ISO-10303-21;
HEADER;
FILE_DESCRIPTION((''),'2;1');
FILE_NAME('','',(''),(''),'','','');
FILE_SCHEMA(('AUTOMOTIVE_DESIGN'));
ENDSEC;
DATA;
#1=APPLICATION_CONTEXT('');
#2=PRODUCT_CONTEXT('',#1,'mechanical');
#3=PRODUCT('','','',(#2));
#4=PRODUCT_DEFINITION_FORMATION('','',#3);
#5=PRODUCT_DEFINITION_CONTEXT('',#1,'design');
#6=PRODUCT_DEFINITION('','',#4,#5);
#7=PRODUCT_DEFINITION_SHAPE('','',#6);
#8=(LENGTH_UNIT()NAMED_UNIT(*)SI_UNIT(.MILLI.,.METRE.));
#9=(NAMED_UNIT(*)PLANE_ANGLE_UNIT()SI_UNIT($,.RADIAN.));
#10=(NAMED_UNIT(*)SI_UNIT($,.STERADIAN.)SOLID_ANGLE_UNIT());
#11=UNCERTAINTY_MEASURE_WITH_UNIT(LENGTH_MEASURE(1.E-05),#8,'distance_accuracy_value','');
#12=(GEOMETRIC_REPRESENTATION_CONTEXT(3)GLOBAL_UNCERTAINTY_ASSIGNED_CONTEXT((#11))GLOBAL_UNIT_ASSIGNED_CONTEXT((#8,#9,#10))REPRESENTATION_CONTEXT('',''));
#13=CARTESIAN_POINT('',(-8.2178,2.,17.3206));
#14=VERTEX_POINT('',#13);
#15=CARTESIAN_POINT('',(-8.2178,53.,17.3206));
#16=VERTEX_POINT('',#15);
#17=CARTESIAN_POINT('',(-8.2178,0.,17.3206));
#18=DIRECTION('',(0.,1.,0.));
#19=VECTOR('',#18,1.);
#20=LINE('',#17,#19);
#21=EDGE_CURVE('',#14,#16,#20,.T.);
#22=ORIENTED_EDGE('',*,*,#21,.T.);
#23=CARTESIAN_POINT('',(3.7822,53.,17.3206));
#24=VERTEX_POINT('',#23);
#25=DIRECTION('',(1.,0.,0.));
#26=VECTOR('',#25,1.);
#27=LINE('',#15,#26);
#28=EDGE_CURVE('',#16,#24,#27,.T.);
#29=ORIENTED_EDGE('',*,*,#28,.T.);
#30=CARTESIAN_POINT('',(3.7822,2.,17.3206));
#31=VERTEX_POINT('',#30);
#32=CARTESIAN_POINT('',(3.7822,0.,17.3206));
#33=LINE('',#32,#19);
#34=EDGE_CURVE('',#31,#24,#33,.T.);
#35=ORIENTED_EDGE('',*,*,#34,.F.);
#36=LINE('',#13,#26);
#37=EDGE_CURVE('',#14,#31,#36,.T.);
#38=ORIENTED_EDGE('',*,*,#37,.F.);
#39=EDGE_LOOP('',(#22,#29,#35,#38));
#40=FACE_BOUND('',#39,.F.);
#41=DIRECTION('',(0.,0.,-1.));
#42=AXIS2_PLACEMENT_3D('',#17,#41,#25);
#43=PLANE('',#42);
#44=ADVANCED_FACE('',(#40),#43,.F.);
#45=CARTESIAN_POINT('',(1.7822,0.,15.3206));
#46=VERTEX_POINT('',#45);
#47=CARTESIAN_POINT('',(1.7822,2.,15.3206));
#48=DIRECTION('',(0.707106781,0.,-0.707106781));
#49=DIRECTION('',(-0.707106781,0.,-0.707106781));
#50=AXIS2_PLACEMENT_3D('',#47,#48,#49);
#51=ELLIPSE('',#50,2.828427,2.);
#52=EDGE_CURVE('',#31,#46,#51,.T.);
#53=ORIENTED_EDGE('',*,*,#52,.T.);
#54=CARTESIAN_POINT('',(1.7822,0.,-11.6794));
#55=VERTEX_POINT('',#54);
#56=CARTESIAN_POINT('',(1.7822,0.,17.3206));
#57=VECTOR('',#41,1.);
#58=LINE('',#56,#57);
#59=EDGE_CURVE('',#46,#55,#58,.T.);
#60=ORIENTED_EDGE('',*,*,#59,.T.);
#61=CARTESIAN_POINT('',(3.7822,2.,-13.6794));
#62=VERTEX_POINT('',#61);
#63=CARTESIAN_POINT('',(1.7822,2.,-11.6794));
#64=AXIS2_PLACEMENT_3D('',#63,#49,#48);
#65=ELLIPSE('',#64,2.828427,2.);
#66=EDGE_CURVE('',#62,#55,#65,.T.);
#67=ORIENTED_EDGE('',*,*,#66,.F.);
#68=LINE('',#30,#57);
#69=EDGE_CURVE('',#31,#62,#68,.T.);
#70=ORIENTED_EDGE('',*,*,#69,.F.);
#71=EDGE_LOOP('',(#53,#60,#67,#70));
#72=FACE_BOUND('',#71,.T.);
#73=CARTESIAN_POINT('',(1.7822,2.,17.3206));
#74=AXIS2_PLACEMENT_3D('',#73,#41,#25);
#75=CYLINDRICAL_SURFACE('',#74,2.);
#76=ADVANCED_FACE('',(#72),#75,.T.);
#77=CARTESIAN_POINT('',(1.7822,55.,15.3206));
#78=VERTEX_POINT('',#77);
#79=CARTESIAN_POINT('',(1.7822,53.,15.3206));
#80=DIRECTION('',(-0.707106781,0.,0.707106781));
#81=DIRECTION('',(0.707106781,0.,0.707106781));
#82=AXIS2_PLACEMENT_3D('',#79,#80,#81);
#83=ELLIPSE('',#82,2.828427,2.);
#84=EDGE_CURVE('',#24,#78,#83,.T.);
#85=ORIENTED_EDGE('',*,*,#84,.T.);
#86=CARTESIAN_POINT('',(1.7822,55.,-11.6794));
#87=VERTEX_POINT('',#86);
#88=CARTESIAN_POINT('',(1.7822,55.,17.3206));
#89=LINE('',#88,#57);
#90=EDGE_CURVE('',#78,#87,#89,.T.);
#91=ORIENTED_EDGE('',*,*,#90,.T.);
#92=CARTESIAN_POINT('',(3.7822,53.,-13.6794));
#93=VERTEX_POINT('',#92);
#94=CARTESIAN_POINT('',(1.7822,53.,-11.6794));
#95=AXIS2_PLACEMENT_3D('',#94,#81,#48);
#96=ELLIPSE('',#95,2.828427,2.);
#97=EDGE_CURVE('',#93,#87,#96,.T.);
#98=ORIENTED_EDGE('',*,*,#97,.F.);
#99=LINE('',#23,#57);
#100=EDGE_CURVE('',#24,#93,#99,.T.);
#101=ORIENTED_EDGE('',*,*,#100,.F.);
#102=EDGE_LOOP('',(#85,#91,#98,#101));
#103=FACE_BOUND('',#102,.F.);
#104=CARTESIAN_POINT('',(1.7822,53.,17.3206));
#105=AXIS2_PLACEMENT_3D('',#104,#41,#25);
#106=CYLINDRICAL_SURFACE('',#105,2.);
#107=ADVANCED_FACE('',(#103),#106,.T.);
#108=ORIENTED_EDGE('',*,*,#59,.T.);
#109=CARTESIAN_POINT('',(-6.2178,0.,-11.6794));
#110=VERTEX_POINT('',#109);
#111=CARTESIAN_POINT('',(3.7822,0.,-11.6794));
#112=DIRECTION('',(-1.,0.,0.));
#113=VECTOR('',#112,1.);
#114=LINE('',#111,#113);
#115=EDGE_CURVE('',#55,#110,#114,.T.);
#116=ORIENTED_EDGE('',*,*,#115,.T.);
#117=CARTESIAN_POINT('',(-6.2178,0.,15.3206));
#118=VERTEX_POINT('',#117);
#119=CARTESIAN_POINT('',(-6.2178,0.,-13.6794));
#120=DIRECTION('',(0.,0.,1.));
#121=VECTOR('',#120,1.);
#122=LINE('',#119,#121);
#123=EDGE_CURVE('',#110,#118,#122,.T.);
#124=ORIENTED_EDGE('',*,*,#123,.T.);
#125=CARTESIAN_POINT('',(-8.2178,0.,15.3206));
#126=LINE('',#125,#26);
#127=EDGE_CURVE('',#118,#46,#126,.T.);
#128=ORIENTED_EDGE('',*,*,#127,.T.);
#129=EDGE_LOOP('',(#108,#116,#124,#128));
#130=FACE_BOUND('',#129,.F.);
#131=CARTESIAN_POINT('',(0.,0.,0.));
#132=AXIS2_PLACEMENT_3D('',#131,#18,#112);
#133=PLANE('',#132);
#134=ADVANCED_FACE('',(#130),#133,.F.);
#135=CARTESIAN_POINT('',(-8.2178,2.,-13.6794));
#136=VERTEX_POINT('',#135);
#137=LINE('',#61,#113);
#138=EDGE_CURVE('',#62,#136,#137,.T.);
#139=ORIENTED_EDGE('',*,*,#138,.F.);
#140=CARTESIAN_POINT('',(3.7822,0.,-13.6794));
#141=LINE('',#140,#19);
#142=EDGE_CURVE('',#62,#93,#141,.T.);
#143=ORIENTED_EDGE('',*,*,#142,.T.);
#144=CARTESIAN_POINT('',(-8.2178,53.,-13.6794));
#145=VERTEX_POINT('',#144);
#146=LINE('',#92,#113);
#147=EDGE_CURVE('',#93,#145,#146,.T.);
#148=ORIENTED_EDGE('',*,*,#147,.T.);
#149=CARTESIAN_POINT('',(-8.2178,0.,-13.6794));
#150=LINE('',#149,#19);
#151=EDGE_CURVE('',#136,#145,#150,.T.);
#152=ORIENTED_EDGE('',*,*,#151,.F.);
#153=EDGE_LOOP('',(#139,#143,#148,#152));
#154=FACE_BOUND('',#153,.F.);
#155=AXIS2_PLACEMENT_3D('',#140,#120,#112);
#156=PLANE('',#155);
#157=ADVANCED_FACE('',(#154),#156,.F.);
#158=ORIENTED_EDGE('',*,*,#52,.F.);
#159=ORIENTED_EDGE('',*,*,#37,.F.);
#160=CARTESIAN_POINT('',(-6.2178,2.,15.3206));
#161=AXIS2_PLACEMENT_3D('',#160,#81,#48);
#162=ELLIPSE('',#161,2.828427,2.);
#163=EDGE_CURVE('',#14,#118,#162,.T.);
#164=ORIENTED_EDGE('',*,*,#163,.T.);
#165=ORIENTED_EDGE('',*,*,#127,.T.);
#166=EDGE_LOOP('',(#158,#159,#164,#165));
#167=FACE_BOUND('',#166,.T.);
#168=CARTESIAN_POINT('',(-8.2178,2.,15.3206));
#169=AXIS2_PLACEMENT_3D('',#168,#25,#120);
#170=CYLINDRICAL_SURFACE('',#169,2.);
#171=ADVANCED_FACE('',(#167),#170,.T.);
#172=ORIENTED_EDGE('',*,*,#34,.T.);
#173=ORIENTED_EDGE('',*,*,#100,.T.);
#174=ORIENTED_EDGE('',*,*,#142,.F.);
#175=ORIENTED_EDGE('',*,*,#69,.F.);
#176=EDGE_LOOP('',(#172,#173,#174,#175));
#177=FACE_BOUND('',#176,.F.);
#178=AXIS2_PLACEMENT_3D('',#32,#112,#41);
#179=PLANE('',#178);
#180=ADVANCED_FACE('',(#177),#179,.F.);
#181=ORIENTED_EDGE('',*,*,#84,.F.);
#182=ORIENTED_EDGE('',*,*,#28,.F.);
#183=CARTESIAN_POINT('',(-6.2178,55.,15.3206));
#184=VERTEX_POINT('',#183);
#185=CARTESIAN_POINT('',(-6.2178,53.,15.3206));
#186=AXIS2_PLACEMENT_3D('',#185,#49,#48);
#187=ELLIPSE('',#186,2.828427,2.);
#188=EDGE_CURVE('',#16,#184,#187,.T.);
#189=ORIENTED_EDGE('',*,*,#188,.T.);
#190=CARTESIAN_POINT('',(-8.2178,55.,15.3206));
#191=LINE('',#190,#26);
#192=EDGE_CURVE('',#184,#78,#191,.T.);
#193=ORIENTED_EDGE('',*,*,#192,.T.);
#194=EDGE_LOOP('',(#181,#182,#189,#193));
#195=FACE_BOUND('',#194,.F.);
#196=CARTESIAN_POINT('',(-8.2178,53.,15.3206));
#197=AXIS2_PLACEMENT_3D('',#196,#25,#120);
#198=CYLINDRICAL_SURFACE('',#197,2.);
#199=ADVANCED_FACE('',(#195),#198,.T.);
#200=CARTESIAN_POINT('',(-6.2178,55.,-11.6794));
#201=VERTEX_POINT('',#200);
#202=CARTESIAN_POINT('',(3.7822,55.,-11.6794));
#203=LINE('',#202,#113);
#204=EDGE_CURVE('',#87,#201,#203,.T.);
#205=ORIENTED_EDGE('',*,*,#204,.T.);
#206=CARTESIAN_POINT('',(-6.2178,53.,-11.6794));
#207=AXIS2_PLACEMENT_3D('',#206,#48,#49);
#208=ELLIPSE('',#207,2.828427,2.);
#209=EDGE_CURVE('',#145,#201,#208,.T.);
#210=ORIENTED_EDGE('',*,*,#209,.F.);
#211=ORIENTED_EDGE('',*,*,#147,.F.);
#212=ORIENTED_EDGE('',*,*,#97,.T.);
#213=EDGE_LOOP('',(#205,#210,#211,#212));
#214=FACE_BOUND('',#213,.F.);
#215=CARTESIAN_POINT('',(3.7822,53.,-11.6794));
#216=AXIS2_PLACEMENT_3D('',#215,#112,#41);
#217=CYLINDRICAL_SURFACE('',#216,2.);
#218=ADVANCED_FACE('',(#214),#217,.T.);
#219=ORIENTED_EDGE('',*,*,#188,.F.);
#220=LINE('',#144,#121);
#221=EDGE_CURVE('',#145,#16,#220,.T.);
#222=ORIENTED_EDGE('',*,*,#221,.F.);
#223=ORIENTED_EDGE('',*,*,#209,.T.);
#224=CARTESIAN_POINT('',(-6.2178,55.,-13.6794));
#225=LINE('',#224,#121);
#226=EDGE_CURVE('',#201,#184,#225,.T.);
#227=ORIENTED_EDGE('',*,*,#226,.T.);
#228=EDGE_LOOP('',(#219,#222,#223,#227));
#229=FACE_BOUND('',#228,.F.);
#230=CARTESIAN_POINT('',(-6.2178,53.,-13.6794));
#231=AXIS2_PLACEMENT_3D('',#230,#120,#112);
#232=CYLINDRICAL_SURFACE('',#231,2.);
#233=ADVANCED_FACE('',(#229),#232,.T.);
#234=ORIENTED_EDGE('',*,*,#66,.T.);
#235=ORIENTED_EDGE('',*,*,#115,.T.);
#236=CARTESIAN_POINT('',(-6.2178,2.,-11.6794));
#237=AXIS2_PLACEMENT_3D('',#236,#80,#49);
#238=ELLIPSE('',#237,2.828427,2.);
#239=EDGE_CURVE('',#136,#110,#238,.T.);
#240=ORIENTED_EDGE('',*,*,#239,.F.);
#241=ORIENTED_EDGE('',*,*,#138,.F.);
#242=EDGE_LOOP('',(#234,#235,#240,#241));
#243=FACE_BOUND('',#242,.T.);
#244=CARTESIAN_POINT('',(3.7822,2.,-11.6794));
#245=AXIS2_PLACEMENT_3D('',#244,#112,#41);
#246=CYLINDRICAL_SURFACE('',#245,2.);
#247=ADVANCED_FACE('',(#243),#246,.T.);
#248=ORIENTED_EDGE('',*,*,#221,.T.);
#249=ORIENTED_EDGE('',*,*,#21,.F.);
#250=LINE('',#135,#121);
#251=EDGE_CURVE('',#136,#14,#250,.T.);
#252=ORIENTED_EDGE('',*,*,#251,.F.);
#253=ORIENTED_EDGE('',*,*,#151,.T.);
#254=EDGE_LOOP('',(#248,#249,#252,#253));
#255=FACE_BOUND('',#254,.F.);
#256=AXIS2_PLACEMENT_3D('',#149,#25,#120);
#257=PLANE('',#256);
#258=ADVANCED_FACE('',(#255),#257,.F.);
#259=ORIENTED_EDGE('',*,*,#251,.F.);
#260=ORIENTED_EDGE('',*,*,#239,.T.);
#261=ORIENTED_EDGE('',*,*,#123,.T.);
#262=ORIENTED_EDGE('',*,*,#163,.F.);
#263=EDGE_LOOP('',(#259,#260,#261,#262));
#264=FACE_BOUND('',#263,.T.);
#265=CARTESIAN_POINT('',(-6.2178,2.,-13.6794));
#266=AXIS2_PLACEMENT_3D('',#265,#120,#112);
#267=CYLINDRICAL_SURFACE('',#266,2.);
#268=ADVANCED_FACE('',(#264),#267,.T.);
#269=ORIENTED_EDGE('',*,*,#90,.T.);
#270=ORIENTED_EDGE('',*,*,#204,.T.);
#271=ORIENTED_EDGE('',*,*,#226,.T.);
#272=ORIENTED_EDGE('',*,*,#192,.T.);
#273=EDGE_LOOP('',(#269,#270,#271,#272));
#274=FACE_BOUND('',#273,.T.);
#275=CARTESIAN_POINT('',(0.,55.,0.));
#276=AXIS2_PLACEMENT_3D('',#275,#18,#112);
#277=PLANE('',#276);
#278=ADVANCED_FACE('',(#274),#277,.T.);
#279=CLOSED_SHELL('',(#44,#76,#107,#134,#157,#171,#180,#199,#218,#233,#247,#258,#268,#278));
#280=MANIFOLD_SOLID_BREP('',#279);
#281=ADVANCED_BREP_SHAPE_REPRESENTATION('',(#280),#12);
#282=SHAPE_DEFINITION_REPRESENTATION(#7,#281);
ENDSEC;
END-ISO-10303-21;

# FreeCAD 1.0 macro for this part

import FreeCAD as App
import Part
import Sketcher
from FreeCAD import Vector


def edges_at(feature, points):
    """Names of the edges that pass closest to the given points."""
    edges = feature.Shape.Edges
    near = lambda p: min(range(len(edges)), key=lambda i: edges[i].distToShape(Part.Vertex(*p))[0])
    return sorted({f"Edge{near(p) + 1}" for p in points})


def add_polygon(sketch, points):
    """Adds a closed chain of lines whose ends are joined by coincident constraints."""
    first, n = sketch.GeometryCount, len(points)
    for a, b in zip(points, points[1:] + points[:1]):
        sketch.addGeometry(Part.LineSegment(App.Vector(*a, 0), App.Vector(*b, 0)), False)
    for i in range(n):
        sketch.addConstraint(Sketcher.Constraint("Coincident", first + i, 2, first + (i + 1) % n, 1))

doc = App.newDocument("Part")
body = doc.addObject("PartDesign::Body", "Body")

# Sketch on XZ plane
sketch1 = body.newObject("Sketcher::SketchObject", "Sketch")
sketch1.AttachmentSupport = (doc.getObject("XZ_Plane"), [""])
sketch1.MapMode = "FlatFace"
add_polygon(sketch1, [(-8.2178, -13.6794), (-8.2178, 17.3206), (3.7822, 17.3206), (3.7822, -13.6794)])  # lines 0-3
sketch1.addConstraint([
    Sketcher.Constraint("Vertical", 0),
    Sketcher.Constraint("Horizontal", 1),
    Sketcher.Constraint("Vertical", 2),
    Sketcher.Constraint("Horizontal", 3),
    Sketcher.Constraint("DistanceX", 1, 1, 1, 2, 12.0),
    Sketcher.Constraint("DistanceY", 0, 1, 0, 2, 31.0),
    Sketcher.Constraint("DistanceX", 0, 2, -1, 1, 8.2178),
    Sketcher.Constraint("DistanceY", -1, 1, 0, 2, 17.3206),
])
pad1 = body.newObject("PartDesign::Pad", "Pad")
pad1.Profile = sketch1
pad1.Length = 55
pad1.Reversed = True
doc.recompute()

fillet = body.newObject("PartDesign::Fillet", "Fillet")
fillet.Base = (pad1, edges_at(pad1, [
    (-2.218, 55, 17.321),
    (3.782, 55, 1.821),
    (-2.218, 55, -13.679),
    (-8.218, 55, 1.821),
    (3.782, 0, 1.821),
    (-2.218, 0, 17.321),
    (-2.218, 0, -13.679),
    (-8.218, 0, 1.821),
]))
fillet.Radius = 2

doc.recompute()
